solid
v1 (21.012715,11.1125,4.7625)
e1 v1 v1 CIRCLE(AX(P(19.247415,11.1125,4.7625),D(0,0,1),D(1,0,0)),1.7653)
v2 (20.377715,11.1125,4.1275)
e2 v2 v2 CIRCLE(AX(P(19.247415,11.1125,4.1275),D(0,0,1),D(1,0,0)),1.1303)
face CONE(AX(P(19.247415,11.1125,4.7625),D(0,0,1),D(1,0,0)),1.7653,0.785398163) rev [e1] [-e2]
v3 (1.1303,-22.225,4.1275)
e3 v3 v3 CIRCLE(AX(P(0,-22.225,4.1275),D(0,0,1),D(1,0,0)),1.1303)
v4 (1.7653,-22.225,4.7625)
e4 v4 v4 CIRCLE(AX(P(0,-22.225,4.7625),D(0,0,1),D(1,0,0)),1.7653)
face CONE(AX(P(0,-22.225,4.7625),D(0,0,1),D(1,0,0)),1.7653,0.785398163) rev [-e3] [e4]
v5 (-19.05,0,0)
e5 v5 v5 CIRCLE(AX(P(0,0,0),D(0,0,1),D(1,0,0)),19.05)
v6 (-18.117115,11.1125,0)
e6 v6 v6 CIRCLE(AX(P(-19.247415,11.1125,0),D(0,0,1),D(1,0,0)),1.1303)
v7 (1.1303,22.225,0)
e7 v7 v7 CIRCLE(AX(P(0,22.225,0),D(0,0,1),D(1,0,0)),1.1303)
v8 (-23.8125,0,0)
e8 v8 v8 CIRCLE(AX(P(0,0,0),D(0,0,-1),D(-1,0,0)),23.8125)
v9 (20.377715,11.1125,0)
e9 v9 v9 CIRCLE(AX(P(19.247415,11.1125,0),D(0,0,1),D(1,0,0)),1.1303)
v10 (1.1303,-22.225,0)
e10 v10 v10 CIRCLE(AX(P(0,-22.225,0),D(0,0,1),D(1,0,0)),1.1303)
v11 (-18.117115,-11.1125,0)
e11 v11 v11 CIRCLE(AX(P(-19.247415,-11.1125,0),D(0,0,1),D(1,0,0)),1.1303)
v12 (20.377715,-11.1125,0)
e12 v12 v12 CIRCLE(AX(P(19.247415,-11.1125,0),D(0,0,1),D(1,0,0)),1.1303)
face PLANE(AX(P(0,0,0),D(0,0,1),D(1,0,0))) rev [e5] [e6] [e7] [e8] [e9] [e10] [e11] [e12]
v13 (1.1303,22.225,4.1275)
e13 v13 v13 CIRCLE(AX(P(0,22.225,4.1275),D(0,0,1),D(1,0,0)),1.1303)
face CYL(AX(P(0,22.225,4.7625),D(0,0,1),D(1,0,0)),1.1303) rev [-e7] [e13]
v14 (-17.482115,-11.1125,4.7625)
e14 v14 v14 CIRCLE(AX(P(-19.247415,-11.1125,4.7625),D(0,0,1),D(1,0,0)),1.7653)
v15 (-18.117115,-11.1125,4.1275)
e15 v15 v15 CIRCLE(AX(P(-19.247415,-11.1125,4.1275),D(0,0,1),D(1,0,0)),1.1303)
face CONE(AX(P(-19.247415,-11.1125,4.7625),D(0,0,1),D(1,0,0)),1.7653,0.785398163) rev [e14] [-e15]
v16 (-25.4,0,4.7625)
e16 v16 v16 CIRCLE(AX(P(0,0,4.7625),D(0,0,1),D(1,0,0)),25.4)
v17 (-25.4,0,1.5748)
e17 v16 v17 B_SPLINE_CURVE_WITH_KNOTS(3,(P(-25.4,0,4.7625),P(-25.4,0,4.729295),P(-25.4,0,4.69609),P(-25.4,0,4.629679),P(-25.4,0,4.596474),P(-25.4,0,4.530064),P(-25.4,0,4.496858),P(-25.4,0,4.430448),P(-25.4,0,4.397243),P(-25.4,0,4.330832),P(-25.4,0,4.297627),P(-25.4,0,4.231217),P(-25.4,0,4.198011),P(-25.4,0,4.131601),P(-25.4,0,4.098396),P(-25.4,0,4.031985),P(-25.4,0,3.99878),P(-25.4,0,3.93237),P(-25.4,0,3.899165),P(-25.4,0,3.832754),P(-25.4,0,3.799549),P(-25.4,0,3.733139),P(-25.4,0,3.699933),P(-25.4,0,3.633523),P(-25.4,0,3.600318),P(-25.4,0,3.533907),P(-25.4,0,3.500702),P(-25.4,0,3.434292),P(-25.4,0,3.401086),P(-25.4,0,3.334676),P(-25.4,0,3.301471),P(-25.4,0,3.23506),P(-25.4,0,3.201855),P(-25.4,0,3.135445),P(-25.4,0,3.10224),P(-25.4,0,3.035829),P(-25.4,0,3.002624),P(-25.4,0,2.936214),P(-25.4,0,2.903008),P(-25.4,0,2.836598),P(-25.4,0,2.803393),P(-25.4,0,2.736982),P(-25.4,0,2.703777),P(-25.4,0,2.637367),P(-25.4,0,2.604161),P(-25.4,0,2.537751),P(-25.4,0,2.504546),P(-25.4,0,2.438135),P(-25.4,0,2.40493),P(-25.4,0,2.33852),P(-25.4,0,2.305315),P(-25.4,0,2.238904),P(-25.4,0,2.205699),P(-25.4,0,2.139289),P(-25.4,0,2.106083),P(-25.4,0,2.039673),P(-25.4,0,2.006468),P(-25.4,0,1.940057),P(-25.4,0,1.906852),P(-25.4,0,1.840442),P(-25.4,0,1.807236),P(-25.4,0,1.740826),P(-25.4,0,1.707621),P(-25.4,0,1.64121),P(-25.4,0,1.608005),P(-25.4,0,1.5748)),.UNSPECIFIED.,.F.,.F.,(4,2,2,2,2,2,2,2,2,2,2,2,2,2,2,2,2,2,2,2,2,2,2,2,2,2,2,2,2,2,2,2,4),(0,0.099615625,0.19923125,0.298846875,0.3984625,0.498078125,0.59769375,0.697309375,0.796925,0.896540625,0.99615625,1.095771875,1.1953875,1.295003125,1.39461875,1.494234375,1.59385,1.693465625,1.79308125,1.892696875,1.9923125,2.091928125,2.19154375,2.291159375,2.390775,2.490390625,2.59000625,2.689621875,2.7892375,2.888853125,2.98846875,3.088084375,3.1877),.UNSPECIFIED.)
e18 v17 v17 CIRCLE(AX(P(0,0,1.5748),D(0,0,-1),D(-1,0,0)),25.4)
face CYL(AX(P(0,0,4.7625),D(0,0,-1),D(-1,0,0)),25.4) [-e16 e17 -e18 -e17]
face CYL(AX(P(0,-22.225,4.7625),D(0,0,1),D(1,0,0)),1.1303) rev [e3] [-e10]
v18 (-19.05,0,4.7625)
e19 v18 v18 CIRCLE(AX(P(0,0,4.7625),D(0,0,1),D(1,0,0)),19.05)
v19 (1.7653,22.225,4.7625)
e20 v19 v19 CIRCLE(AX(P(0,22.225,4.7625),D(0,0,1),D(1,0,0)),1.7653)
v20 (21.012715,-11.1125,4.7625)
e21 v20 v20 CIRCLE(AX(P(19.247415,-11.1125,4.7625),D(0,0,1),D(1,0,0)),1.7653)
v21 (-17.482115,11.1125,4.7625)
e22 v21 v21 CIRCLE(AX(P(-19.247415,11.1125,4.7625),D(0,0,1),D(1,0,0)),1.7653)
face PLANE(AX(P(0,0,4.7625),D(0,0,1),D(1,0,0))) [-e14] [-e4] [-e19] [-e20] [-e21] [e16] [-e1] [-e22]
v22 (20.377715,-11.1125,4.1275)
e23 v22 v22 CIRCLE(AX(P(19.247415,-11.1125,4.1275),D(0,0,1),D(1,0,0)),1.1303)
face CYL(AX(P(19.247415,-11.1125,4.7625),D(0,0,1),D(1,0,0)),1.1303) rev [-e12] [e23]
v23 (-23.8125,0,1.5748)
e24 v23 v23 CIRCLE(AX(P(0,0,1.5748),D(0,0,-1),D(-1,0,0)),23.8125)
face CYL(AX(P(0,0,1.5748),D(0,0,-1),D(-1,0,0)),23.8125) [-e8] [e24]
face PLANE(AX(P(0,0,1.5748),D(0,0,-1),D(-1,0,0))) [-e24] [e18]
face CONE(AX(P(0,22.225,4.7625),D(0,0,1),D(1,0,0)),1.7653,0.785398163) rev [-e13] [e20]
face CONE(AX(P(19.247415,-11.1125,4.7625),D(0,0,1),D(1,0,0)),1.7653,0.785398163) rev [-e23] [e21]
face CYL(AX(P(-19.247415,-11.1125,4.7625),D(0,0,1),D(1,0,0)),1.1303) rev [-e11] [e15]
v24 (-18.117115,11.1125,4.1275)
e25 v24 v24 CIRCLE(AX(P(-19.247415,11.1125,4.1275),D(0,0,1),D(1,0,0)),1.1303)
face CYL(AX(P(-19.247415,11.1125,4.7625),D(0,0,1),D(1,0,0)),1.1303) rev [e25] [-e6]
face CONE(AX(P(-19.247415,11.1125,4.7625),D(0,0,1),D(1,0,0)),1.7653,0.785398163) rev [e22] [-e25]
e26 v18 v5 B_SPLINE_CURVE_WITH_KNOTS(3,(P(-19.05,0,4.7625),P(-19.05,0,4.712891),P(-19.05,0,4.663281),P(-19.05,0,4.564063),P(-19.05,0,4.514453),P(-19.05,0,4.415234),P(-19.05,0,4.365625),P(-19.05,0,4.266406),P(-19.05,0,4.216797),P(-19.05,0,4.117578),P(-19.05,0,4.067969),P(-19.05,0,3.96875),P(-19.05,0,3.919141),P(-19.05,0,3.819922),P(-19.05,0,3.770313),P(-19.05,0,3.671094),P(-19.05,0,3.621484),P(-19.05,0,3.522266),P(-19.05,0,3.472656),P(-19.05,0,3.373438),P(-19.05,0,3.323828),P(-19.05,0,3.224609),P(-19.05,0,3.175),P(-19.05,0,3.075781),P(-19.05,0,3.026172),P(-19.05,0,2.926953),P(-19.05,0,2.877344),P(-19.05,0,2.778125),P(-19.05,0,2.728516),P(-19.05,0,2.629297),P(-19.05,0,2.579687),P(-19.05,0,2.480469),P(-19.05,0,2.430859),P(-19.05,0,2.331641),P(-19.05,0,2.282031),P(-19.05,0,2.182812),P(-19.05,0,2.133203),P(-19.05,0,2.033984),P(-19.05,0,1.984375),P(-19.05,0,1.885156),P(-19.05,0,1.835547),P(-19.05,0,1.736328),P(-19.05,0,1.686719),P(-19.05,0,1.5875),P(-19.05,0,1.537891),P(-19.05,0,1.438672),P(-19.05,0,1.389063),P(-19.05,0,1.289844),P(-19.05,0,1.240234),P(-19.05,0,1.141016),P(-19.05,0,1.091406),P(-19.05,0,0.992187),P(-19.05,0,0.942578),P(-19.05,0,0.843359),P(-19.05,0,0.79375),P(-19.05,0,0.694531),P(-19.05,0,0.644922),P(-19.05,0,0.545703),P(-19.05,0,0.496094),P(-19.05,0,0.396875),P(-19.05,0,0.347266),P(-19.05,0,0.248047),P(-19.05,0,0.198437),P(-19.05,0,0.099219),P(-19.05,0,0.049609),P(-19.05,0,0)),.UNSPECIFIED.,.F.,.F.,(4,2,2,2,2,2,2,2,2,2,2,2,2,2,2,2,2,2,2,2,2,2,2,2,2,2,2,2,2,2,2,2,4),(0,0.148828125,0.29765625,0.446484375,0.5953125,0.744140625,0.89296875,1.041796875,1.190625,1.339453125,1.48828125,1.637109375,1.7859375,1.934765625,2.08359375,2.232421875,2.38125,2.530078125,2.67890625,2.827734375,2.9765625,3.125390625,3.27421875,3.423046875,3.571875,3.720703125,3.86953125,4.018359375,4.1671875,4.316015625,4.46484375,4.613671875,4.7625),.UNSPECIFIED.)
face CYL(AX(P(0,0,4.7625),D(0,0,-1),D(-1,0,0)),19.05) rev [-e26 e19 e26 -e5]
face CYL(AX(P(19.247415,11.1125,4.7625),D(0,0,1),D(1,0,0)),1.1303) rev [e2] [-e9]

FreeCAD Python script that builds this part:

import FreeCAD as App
import Part
import Sketcher

V = App.Vector
Q = App.Units.Quantity


def add_polygon(sketch, points):
    """Adds a closed chain of lines whose ends are joined by coincident constraints."""
    first, n = sketch.GeometryCount, len(points)
    for a, b in zip(points, points[1:] + points[:1]):
        sketch.addGeometry(Part.LineSegment(App.Vector(*a, 0), App.Vector(*b, 0)), False)
    for i in range(n):
        sketch.addConstraint(Sketcher.Constraint("Coincident", first + i, 2, first + (i + 1) % n, 1))

doc = App.newDocument("Part")
body = doc.addObject("PartDesign::Body", "Body")

# Sketch on XY plane
sketch1 = doc.addObject("Sketcher::SketchObject", "Sketch")
body.addObject(sketch1)
sketch1.AttachmentSupport = (doc.XY_Plane, [""])
sketch1.MapMode = "FlatFace"
sketch1.addGeometry(Part.Circle(V(0, 0, 0), V(0, 0, 1), 25), False)
sketch1.addGeometry(Part.Circle(V(0, 0, 0), V(0, 0, 1), 19), False)
sketch1.addConstraint(Sketcher.Constraint("Coincident", 0, 3, -1, 1))
sketch1.addConstraint(Sketcher.Constraint("Coincident", 1, 3, -1, 1))
sketch1.addConstraint(Sketcher.Constraint("Diameter", 0, Q("2 in")))
sketch1.addConstraint(Sketcher.Constraint("Diameter", 1, Q("1.5 in")))
pad1 = doc.addObject("PartDesign::Pad", "Pad")
body.addObject(pad1)
pad1.Profile = sketch1
pad1.Length = Q("0.1875 in")

# Sketch on XY plane
sketch2 = doc.addObject("Sketcher::SketchObject", "Sketch001")
body.addObject(sketch2)
sketch2.AttachmentSupport = (doc.XY_Plane, [""])
sketch2.MapMode = "FlatFace"
sketch2.AttachmentOffset = App.Placement(V(0, 0, 0.1875 * 25.4), App.Rotation())
sketch2.addGeometry(Part.Circle(V(0, 22.2, 0), V(0, 0, 1), 1.1), False)
sketch2.addGeometry(Part.Circle(V(-19.2, 11.1, 0), V(0, 0, 1), 1.1), False)
sketch2.addGeometry(Part.Circle(V(19.2, 11.1, 0), V(0, 0, 1), 1.1), False)
sketch2.addGeometry(Part.Circle(V(19.2, -11.1, 0), V(0, 0, 1), 1.1), False)
sketch2.addGeometry(Part.Circle(V(0, -22.2, 0), V(0, 0, 1), 1.1), False)
sketch2.addGeometry(Part.Circle(V(-19.2, -11.1, 0), V(0, 0, 1), 1.1), False)
sketch2.addConstraint(Sketcher.Constraint("Equal", 0, 1))
sketch2.addConstraint(Sketcher.Constraint("Equal", 1, 2))
sketch2.addConstraint(Sketcher.Constraint("Equal", 2, 3))
sketch2.addConstraint(Sketcher.Constraint("Equal", 3, 4))
sketch2.addConstraint(Sketcher.Constraint("Equal", 4, 5))
sketch2.addConstraint(Sketcher.Constraint("Symmetric", 1, 3, 3, 3, -1, 1))
sketch2.addConstraint(Sketcher.Constraint("Symmetric", 0, 3, 4, 3, -1, 1))
sketch2.addConstraint(Sketcher.Constraint("Symmetric", 2, 3, 5, 3, -1, 1))
sketch2.addConstraint(Sketcher.Constraint("Symmetric", 1, 3, 2, 3, -2))
sketch2.addConstraint(Sketcher.Constraint("PointOnObject", 0, 3, -2))
sketch2.addConstraint(Sketcher.Constraint("Diameter", 0, Q("0.089 in")))
sketch2.addConstraint(Sketcher.Constraint("DistanceY", 4, 3, 0, 3, Q("1.75 in")))
sketch2.addConstraint(Sketcher.Constraint("DistanceY", -1, 1, 1, 3, Q("0.4375 in")))
sketch2.addConstraint(Sketcher.Constraint("DistanceX", 1, 3, 2, 3, Q("38.494829 mm")))
doc.recompute()
hole = doc.addObject("PartDesign::Hole", "Hole")
body.addObject(hole)
hole.Profile = sketch2
hole.ThreadType = "None"
hole.Diameter = Q("0.089 in")
hole.DepthType = "Dimension"
hole.Depth = Q("0.3 in")
hole.DrillPoint = "Angled"
hole.DrillPointAngle = 118
hole.HoleCutType = "Countersink"
hole.HoleCutDiameter = Q("0.139 in")
hole.HoleCutCountersinkAngle = 90

# Sketch on XY plane
sketch3 = doc.addObject("Sketcher::SketchObject", "Sketch002")
body.addObject(sketch3)
sketch3.AttachmentSupport = (doc.XY_Plane, [""])
sketch3.MapMode = "FlatFace"
add_polygon(sketch3, [(34, 34), (34, -34), (-34, -34), (-34, 34)])  # lines 0-3
sketch3.addGeometry(Part.Circle(V(0, 0, 0), V(0, 0, 1), 24), False)  # 4
sketch3.addConstraint(Sketcher.Constraint("Vertical", 0))
sketch3.addConstraint(Sketcher.Constraint("Horizontal", 1))
sketch3.addConstraint(Sketcher.Constraint("Vertical", 2))
sketch3.addConstraint(Sketcher.Constraint("Horizontal", 3))
sketch3.addConstraint(Sketcher.Constraint("Coincident", 4, 3, -1, 1))
sketch3.addConstraint(Sketcher.Constraint("Symmetric", 0, 2, 2, 2, -1, 1))
sketch3.addConstraint(Sketcher.Constraint("Equal", 3, 0))
sketch3.addConstraint(Sketcher.Constraint("Diameter", 4, Q("1.875 in")))
sketch3.addConstraint(Sketcher.Constraint("DistanceX", 1, 2, 1, 1, Q("67.2 mm")))
pocket1 = doc.addObject("PartDesign::Pocket", "Pocket")
body.addObject(pocket1)
pocket1.Profile = sketch3
pocket1.Length = Q("0.062 in")
pocket1.Reversed = True

doc.recompute()
